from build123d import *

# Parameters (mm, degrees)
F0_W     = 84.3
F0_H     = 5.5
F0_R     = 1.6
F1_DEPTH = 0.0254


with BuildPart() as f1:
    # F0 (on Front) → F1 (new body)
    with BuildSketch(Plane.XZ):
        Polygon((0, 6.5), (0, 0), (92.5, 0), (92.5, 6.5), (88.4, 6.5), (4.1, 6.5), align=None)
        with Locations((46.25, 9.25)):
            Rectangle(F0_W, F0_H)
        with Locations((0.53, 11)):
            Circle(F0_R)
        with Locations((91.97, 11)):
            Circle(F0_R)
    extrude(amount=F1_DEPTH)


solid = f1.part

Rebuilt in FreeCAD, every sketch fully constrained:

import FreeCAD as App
import Part
import Sketcher
from FreeCAD import Vector

doc = App.newDocument("Part")
body = doc.addObject("PartDesign::Body", "Body")
body.AllowCompound = True

# Sketch on XZ plane
sketch1 = body.newObject("Sketcher::SketchObject", "Sketch")
sketch1.AttachmentSupport = (doc.getObject("XZ_Plane"), [""])
sketch1.MapMode = "FlatFace"
sketch1.addGeometry(Part.LineSegment(Vector(0, 6.5, 0), Vector(0, 0, 0)), False)
sketch1.addGeometry(Part.LineSegment(Vector(0, 0, 0), Vector(92.5, 0, 0)), False)
sketch1.addGeometry(Part.LineSegment(Vector(92.5, 0, 0), Vector(92.5, 6.5, 0)), False)
sketch1.addGeometry(Part.LineSegment(Vector(92.5, 6.5, 0), Vector(88.4, 6.5, 0)), False)
sketch1.addGeometry(Part.LineSegment(Vector(88.4, 6.5, 0), Vector(88.4, 12, 0)), False)
sketch1.addGeometry(Part.LineSegment(Vector(88.4, 12, 0), Vector(4.1, 12, 0)), False)
sketch1.addGeometry(Part.LineSegment(Vector(4.1, 12, 0), Vector(4.1, 6.5, 0)), False)
sketch1.addGeometry(Part.LineSegment(Vector(4.1, 6.5, 0), Vector(0, 6.5, 0)), False)
sketch1.addGeometry(Part.Circle(Vector(0.5, 11, 0), Vector(0, 0, 1), 1.6), False)
sketch1.addGeometry(Part.Circle(Vector(92, 11, 0), Vector(0, 0, 1), 1.6), False)
sketch1.addConstraint(Sketcher.Constraint("Coincident", 0, 2, 1, 1))
sketch1.addConstraint(Sketcher.Constraint("Coincident", 1, 2, 2, 1))
sketch1.addConstraint(Sketcher.Constraint("Coincident", 2, 2, 3, 1))
sketch1.addConstraint(Sketcher.Constraint("Coincident", 3, 2, 4, 1))
sketch1.addConstraint(Sketcher.Constraint("Coincident", 4, 2, 5, 1))
sketch1.addConstraint(Sketcher.Constraint("Coincident", 5, 2, 6, 1))
sketch1.addConstraint(Sketcher.Constraint("Coincident", 6, 2, 7, 1))
sketch1.addConstraint(Sketcher.Constraint("Coincident", 7, 2, 0, 1))
sketch1.addConstraint(Sketcher.Constraint("Vertical", 0))
sketch1.addConstraint(Sketcher.Constraint("Horizontal", 1))
sketch1.addConstraint(Sketcher.Constraint("Vertical", 2))
sketch1.addConstraint(Sketcher.Constraint("Horizontal", 3))
sketch1.addConstraint(Sketcher.Constraint("Vertical", 4))
sketch1.addConstraint(Sketcher.Constraint("Horizontal", 5))
sketch1.addConstraint(Sketcher.Constraint("Vertical", 6))
sketch1.addConstraint(Sketcher.Constraint("Horizontal", 7))
sketch1.addConstraint(Sketcher.Constraint("Coincident", 0, 2, -1, 1))
sketch1.addConstraint(Sketcher.Constraint("Equal", 8, 9))
sketch1.addConstraint(Sketcher.Constraint("Horizontal", 8, 3, 9, 3))
sketch1.addConstraint(Sketcher.Constraint("Horizontal", 3, 2, 6, 2))
sketch1.addConstraint(Sketcher.Constraint("Equal", 3, 7))
sketch1.addConstraint(Sketcher.Constraint("Diameter", 8, 3.2))
sketch1.addConstraint(Sketcher.Constraint("DistanceX", 1, 1, 1, 2, 92.5))
sketch1.addConstraint(Sketcher.Constraint("DistanceX", 3, 2, 3, 1, 4.1))
sketch1.addConstraint(Sketcher.Constraint("DistanceY", 0, 2, 0, 1, 6.5))
sketch1.addConstraint(Sketcher.Constraint("DistanceY", 4, 1, 4, 2, 5.5))
sketch1.addConstraint(Sketcher.Constraint("DistanceY", -1, 1, 8, 3, 11.0))
sketch1.addConstraint(Sketcher.Constraint("DistanceX", -1, 1, 8, 3, 0.53))
sketch1.addConstraint(Sketcher.Constraint("DistanceX", -1, 1, 9, 3, 91.97))
pad1 = body.newObject("PartDesign::Pad", "Pad")
pad1.Profile = sketch1
pad1.Length = 0.0254

doc.recompute()
